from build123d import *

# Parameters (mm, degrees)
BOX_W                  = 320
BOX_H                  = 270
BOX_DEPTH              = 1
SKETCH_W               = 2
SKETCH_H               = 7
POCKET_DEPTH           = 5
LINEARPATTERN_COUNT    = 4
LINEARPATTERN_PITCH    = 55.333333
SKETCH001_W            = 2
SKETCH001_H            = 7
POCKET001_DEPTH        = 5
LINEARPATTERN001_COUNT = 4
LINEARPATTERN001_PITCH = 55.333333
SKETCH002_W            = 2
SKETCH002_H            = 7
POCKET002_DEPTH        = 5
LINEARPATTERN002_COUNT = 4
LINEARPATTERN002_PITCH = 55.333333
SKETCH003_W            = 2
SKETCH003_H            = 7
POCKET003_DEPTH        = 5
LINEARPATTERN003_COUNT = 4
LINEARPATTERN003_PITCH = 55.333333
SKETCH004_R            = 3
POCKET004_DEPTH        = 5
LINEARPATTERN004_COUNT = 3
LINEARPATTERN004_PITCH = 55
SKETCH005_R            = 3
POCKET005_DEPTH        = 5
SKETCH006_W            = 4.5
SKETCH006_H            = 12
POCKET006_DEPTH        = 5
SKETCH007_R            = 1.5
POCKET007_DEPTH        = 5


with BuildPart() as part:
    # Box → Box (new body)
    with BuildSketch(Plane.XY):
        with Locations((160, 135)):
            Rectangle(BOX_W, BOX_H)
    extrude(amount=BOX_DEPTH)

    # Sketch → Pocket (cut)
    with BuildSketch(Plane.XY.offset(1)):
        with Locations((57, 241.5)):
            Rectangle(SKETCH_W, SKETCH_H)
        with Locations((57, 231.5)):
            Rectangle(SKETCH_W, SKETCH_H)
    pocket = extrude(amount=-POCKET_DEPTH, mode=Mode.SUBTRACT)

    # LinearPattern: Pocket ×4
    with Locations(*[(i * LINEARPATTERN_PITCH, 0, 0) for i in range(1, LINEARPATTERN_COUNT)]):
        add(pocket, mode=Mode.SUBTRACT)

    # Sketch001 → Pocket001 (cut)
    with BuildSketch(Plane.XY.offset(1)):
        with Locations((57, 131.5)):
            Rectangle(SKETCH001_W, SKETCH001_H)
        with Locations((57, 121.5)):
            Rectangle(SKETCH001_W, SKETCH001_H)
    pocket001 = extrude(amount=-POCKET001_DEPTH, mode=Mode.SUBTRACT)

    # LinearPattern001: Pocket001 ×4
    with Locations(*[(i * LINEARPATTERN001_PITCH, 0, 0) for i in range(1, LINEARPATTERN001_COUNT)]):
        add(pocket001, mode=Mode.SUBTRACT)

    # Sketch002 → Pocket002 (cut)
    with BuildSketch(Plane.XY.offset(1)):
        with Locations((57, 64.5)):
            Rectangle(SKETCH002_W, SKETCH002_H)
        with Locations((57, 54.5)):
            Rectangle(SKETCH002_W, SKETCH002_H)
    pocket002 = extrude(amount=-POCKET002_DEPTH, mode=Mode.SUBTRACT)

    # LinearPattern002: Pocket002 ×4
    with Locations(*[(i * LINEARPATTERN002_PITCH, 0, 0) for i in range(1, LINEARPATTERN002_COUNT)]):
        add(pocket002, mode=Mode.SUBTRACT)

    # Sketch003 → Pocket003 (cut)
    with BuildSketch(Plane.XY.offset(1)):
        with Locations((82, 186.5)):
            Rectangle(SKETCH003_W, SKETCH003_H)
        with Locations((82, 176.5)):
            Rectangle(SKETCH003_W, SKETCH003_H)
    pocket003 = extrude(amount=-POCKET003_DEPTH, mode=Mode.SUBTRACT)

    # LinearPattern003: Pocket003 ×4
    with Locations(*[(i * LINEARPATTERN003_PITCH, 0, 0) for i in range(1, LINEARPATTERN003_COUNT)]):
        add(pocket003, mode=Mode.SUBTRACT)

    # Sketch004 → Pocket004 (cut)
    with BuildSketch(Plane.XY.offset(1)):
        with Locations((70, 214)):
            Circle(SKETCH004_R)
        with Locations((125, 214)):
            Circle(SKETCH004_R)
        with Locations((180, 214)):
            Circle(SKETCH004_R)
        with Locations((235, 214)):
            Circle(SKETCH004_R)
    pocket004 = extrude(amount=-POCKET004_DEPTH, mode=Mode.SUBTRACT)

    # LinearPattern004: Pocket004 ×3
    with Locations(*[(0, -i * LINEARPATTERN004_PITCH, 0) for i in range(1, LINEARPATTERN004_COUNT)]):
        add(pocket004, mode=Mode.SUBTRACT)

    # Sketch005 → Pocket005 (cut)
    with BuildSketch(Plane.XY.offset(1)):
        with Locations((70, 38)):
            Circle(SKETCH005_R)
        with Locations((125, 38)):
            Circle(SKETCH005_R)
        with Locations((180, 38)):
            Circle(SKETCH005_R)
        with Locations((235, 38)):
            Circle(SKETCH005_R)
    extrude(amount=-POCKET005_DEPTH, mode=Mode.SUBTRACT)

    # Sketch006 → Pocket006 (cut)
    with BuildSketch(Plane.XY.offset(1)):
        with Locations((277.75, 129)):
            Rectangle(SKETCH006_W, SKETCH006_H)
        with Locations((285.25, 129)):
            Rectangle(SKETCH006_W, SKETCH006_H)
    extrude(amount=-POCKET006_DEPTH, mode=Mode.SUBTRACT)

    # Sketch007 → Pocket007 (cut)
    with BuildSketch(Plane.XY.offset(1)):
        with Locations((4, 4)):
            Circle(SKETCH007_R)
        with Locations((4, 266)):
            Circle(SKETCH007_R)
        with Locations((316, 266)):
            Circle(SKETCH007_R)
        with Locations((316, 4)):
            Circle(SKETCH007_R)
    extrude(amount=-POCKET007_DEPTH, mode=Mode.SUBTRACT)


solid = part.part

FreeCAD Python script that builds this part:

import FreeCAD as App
import Part
import Sketcher

V = App.Vector
Q = App.Units.Quantity


def add_polygon(sketch, points):
    """Adds a closed chain of lines whose ends are joined by coincident constraints."""
    first, n = sketch.GeometryCount, len(points)
    for a, b in zip(points, points[1:] + points[:1]):
        sketch.addGeometry(Part.LineSegment(App.Vector(*a, 0), App.Vector(*b, 0)), False)
    for i in range(n):
        sketch.addConstraint(Sketcher.Constraint("Coincident", first + i, 2, first + (i + 1) % n, 1))

doc = App.newDocument("Part")
params = doc.addObject("Spreadsheet::Sheet", "Params")
for row, (alias, value) in enumerate([
    ("sketch1_width", "320 mm"),
    ("sketch1_height", "270 mm"),
    ("pad1_length", "1 mm"),
    ("sketch2_width", "2 mm"),
    ("sketch2_height", "7 mm"),
    ("pocket1_length", "5 mm"),
    ("linearpattern_pitch", "55.333333 mm"),
    ("sketch3_width", "2 mm"),
    ("sketch3_height", "7 mm"),
    ("pocket2_length", "5 mm"),
    ("linearpattern2_pitch", "55.333333 mm"),
    ("sketch4_width", "2 mm"),
    ("sketch4_height", "7 mm"),
    ("pocket3_length", "5 mm"),
    ("linearpattern3_pitch", "55.333333 mm"),
    ("sketch5_width", "2 mm"),
    ("sketch5_height", "7 mm"),
    ("pocket4_length", "5 mm"),
    ("linearpattern4_pitch", "55.333333 mm"),
    ("sketch6_diameter", "6 mm"),
    ("pocket5_length", "5 mm"),
    ("linearpattern5_pitch", "55 mm"),
    ("sketch7_diameter", "6 mm"),
    ("pocket6_length", "5 mm"),
    ("sketch8_height", "12 mm"),
    ("sketch8_width", "4.5 mm"),
    ("pocket7_length", "5 mm"),
    ("sketch9_diameter", "3 mm"),
    ("pocket8_length", "5 mm"),
], start=1):
    params.set(f"A{row}", alias)
    params.set(f"B{row}", "=" + value)
    params.setAlias(f"B{row}", alias)

body = doc.addObject("PartDesign::Body", "Body")

# Sketch on XY plane
sketch1 = body.newObject("Sketcher::SketchObject", "Sketch")
sketch1.AttachmentSupport = (doc.getObject("XY_Plane"), [""])
sketch1.MapMode = "FlatFace"
add_polygon(sketch1, [(0, 270), (0, 0), (320, 0), (320, 270)])  # lines 0-3
sketch1.addConstraint(Sketcher.Constraint("Vertical", 0))
sketch1.addConstraint(Sketcher.Constraint("Horizontal", 1))
sketch1.addConstraint(Sketcher.Constraint("Vertical", 2))
sketch1.addConstraint(Sketcher.Constraint("Horizontal", 3))
sketch1.addConstraint(Sketcher.Constraint("Coincident", 0, 2, -1, 1))
sketch1.addConstraint(Sketcher.Constraint("DistanceX", 1, 1, 1, 2, Q("320 mm")))
sketch1.addConstraint(Sketcher.Constraint("DistanceY", 0, 2, 0, 1, Q("270 mm")))
sketch1.setExpression("Constraints[9]", "Params.sketch1_width")
sketch1.setExpression("Constraints[10]", "Params.sketch1_height")
pad1 = body.newObject("PartDesign::Pad", "Pad")
pad1.Profile = sketch1
pad1.setExpression("Length", "Params.pad1_length")

# Sketch on XY plane
sketch2 = body.newObject("Sketcher::SketchObject", "Sketch001")
sketch2.AttachmentSupport = (doc.getObject("XY_Plane"), [""])
sketch2.MapMode = "FlatFace"
sketch2.AttachmentOffset = App.Placement(V(0, 0, 1), App.Rotation())
add_polygon(sketch2, [(56, 245), (56, 238), (58, 238), (58, 245)])  # lines 0-3
add_polygon(sketch2, [(56, 235), (56, 228), (58, 228), (58, 235)])  # lines 4-7
sketch2.addConstraint(Sketcher.Constraint("Vertical", 0))
sketch2.addConstraint(Sketcher.Constraint("Horizontal", 1))
sketch2.addConstraint(Sketcher.Constraint("Vertical", 2))
sketch2.addConstraint(Sketcher.Constraint("Horizontal", 3))
sketch2.addConstraint(Sketcher.Constraint("Vertical", 4))
sketch2.addConstraint(Sketcher.Constraint("Horizontal", 5))
sketch2.addConstraint(Sketcher.Constraint("Vertical", 6))
sketch2.addConstraint(Sketcher.Constraint("Horizontal", 7))
sketch2.addConstraint(Sketcher.Constraint("Vertical", 3, 2, 4, 2))
sketch2.addConstraint(Sketcher.Constraint("Vertical", 2, 2, 5, 2))
sketch2.addConstraint(Sketcher.Constraint("Equal", 2, 4))
sketch2.addConstraint(Sketcher.Constraint("DistanceX", 1, 1, 1, 2, Q("2 mm")))
sketch2.addConstraint(Sketcher.Constraint("DistanceY", 0, 2, 0, 1, Q("7 mm")))
sketch2.addConstraint(Sketcher.Constraint("DistanceX", -1, 1, 0, 2, Q("56 mm")))
sketch2.addConstraint(Sketcher.Constraint("DistanceY", -1, 1, 0, 2, Q("238 mm")))
sketch2.addConstraint(Sketcher.Constraint("DistanceY", -1, 1, 4, 2, Q("228 mm")))
sketch2.setExpression("Constraints[19]", "Params.sketch2_width")
sketch2.setExpression("Constraints[20]", "Params.sketch2_height")
pocket1 = body.newObject("PartDesign::Pocket", "Pocket")
pocket1.Profile = sketch2
pocket1.setExpression("Length", "Params.pocket1_length")
doc.recompute()

linearpattern = body.newObject("PartDesign::LinearPattern", "LinearPattern")
linearpattern.Originals = [pocket1]
linearpattern.Direction = (doc.getObject("X_Axis"), [""])
linearpattern.Mode = "offset"
linearpattern.setExpression("Offset", "Params.linearpattern_pitch")
linearpattern.Occurrences = 4
body.Tip = linearpattern

# Sketch on XY plane
sketch3 = body.newObject("Sketcher::SketchObject", "Sketch002")
sketch3.AttachmentSupport = (doc.getObject("XY_Plane"), [""])
sketch3.MapMode = "FlatFace"
sketch3.AttachmentOffset = App.Placement(V(0, 0, 1), App.Rotation())
add_polygon(sketch3, [(56, 135), (56, 128), (58, 128), (58, 135)])  # lines 0-3
add_polygon(sketch3, [(56, 125), (56, 118), (58, 118), (58, 125)])  # lines 4-7
sketch3.addConstraint(Sketcher.Constraint("Vertical", 0))
sketch3.addConstraint(Sketcher.Constraint("Horizontal", 1))
sketch3.addConstraint(Sketcher.Constraint("Vertical", 2))
sketch3.addConstraint(Sketcher.Constraint("Horizontal", 3))
sketch3.addConstraint(Sketcher.Constraint("Vertical", 4))
sketch3.addConstraint(Sketcher.Constraint("Horizontal", 5))
sketch3.addConstraint(Sketcher.Constraint("Vertical", 6))
sketch3.addConstraint(Sketcher.Constraint("Horizontal", 7))
sketch3.addConstraint(Sketcher.Constraint("Vertical", 3, 2, 4, 2))
sketch3.addConstraint(Sketcher.Constraint("Vertical", 2, 2, 5, 2))
sketch3.addConstraint(Sketcher.Constraint("Equal", 2, 4))
sketch3.addConstraint(Sketcher.Constraint("DistanceX", 1, 1, 1, 2, Q("2 mm")))
sketch3.addConstraint(Sketcher.Constraint("DistanceY", 0, 2, 0, 1, Q("7 mm")))
sketch3.addConstraint(Sketcher.Constraint("DistanceX", -1, 1, 0, 2, Q("56 mm")))
sketch3.addConstraint(Sketcher.Constraint("DistanceY", -1, 1, 0, 2, Q("128 mm")))
sketch3.addConstraint(Sketcher.Constraint("DistanceY", -1, 1, 4, 2, Q("118 mm")))
sketch3.setExpression("Constraints[19]", "Params.sketch3_width")
sketch3.setExpression("Constraints[20]", "Params.sketch3_height")
pocket2 = body.newObject("PartDesign::Pocket", "Pocket001")
pocket2.Profile = sketch3
pocket2.setExpression("Length", "Params.pocket2_length")
doc.recompute()

linearpattern2 = body.newObject("PartDesign::LinearPattern", "LinearPattern001")
linearpattern2.Originals = [pocket2]
linearpattern2.Direction = (doc.getObject("X_Axis"), [""])
linearpattern2.Mode = "offset"
linearpattern2.setExpression("Offset", "Params.linearpattern2_pitch")
linearpattern2.Occurrences = 4
body.Tip = linearpattern2

# Sketch on XY plane
sketch4 = body.newObject("Sketcher::SketchObject", "Sketch003")
sketch4.AttachmentSupport = (doc.getObject("XY_Plane"), [""])
sketch4.MapMode = "FlatFace"
sketch4.AttachmentOffset = App.Placement(V(0, 0, 1), App.Rotation())
add_polygon(sketch4, [(56, 68), (56, 61), (58, 61), (58, 68)])  # lines 0-3
add_polygon(sketch4, [(56, 58), (56, 51), (58, 51), (58, 58)])  # lines 4-7
sketch4.addConstraint(Sketcher.Constraint("Vertical", 0))
sketch4.addConstraint(Sketcher.Constraint("Horizontal", 1))
sketch4.addConstraint(Sketcher.Constraint("Vertical", 2))
sketch4.addConstraint(Sketcher.Constraint("Horizontal", 3))
sketch4.addConstraint(Sketcher.Constraint("Vertical", 4))
sketch4.addConstraint(Sketcher.Constraint("Horizontal", 5))
sketch4.addConstraint(Sketcher.Constraint("Vertical", 6))
sketch4.addConstraint(Sketcher.Constraint("Horizontal", 7))
sketch4.addConstraint(Sketcher.Constraint("Vertical", 3, 2, 4, 2))
sketch4.addConstraint(Sketcher.Constraint("Vertical", 2, 2, 5, 2))
sketch4.addConstraint(Sketcher.Constraint("Equal", 2, 4))
sketch4.addConstraint(Sketcher.Constraint("DistanceX", 1, 1, 1, 2, Q("2 mm")))
sketch4.addConstraint(Sketcher.Constraint("DistanceY", 0, 2, 0, 1, Q("7 mm")))
sketch4.addConstraint(Sketcher.Constraint("DistanceX", -1, 1, 0, 2, Q("56 mm")))
sketch4.addConstraint(Sketcher.Constraint("DistanceY", -1, 1, 0, 2, Q("61 mm")))
sketch4.addConstraint(Sketcher.Constraint("DistanceY", -1, 1, 4, 2, Q("51 mm")))
sketch4.setExpression("Constraints[19]", "Params.sketch4_width")
sketch4.setExpression("Constraints[20]", "Params.sketch4_height")
pocket3 = body.newObject("PartDesign::Pocket", "Pocket002")
pocket3.Profile = sketch4
pocket3.setExpression("Length", "Params.pocket3_length")
doc.recompute()

linearpattern3 = body.newObject("PartDesign::LinearPattern", "LinearPattern002")
linearpattern3.Originals = [pocket3]
linearpattern3.Direction = (doc.getObject("X_Axis"), [""])
linearpattern3.Mode = "offset"
linearpattern3.setExpression("Offset", "Params.linearpattern3_pitch")
linearpattern3.Occurrences = 4
body.Tip = linearpattern3

# Sketch on XY plane
sketch5 = body.newObject("Sketcher::SketchObject", "Sketch004")
sketch5.AttachmentSupport = (doc.getObject("XY_Plane"), [""])
sketch5.MapMode = "FlatFace"
sketch5.AttachmentOffset = App.Placement(V(0, 0, 1), App.Rotation())
add_polygon(sketch5, [(81, 190), (81, 183), (83, 183), (83, 190)])  # lines 0-3
add_polygon(sketch5, [(81, 180), (81, 173), (83, 173), (83, 180)])  # lines 4-7
sketch5.addConstraint(Sketcher.Constraint("Vertical", 0))
sketch5.addConstraint(Sketcher.Constraint("Horizontal", 1))
sketch5.addConstraint(Sketcher.Constraint("Vertical", 2))
sketch5.addConstraint(Sketcher.Constraint("Horizontal", 3))
sketch5.addConstraint(Sketcher.Constraint("Vertical", 4))
sketch5.addConstraint(Sketcher.Constraint("Horizontal", 5))
sketch5.addConstraint(Sketcher.Constraint("Vertical", 6))
sketch5.addConstraint(Sketcher.Constraint("Horizontal", 7))
sketch5.addConstraint(Sketcher.Constraint("Vertical", 3, 2, 4, 2))
sketch5.addConstraint(Sketcher.Constraint("Vertical", 2, 2, 5, 2))
sketch5.addConstraint(Sketcher.Constraint("Equal", 2, 4))
sketch5.addConstraint(Sketcher.Constraint("DistanceX", 1, 1, 1, 2, Q("2 mm")))
sketch5.addConstraint(Sketcher.Constraint("DistanceY", 0, 2, 0, 1, Q("7 mm")))
sketch5.addConstraint(Sketcher.Constraint("DistanceX", -1, 1, 0, 2, Q("81 mm")))
sketch5.addConstraint(Sketcher.Constraint("DistanceY", -1, 1, 0, 2, Q("183 mm")))
sketch5.addConstraint(Sketcher.Constraint("DistanceY", -1, 1, 4, 2, Q("173 mm")))
sketch5.setExpression("Constraints[19]", "Params.sketch5_width")
sketch5.setExpression("Constraints[20]", "Params.sketch5_height")
pocket4 = body.newObject("PartDesign::Pocket", "Pocket003")
pocket4.Profile = sketch5
pocket4.setExpression("Length", "Params.pocket4_length")
doc.recompute()

linearpattern4 = body.newObject("PartDesign::LinearPattern", "LinearPattern003")
linearpattern4.Originals = [pocket4]
linearpattern4.Direction = (doc.getObject("X_Axis"), [""])
linearpattern4.Mode = "offset"
linearpattern4.setExpression("Offset", "Params.linearpattern4_pitch")
linearpattern4.Occurrences = 4
body.Tip = linearpattern4

# Sketch on XY plane
sketch6 = body.newObject("Sketcher::SketchObject", "Sketch005")
sketch6.AttachmentSupport = (doc.getObject("XY_Plane"), [""])
sketch6.MapMode = "FlatFace"
sketch6.AttachmentOffset = App.Placement(V(0, 0, 1), App.Rotation())
sketch6.addGeometry(Part.Circle(V(70, 214, 0), V(0, 0, 1), 3), False)
sketch6.addGeometry(Part.Circle(V(125, 214, 0), V(0, 0, 1), 3), False)
sketch6.addGeometry(Part.Circle(V(180, 214, 0), V(0, 0, 1), 3), False)
sketch6.addGeometry(Part.Circle(V(235, 214, 0), V(0, 0, 1), 3), False)
sketch6.addConstraint(Sketcher.Constraint("Equal", 0, 1))
sketch6.addConstraint(Sketcher.Constraint("Equal", 1, 2))
sketch6.addConstraint(Sketcher.Constraint("Equal", 2, 3))
sketch6.addConstraint(Sketcher.Constraint("Horizontal", 0, 3, 1, 3))
sketch6.addConstraint(Sketcher.Constraint("Horizontal", 1, 3, 2, 3))
sketch6.addConstraint(Sketcher.Constraint("Horizontal", 2, 3, 3, 3))
sketch6.addConstraint(Sketcher.Constraint("Diameter", 0, Q("6 mm")))
sketch6.addConstraint(Sketcher.Constraint("DistanceX", -1, 1, 0, 3, Q("70 mm")))
sketch6.addConstraint(Sketcher.Constraint("DistanceY", -1, 1, 0, 3, Q("214 mm")))
sketch6.addConstraint(Sketcher.Constraint("DistanceX", -1, 1, 1, 3, Q("125 mm")))
sketch6.addConstraint(Sketcher.Constraint("DistanceX", -1, 1, 2, 3, Q("180 mm")))
sketch6.addConstraint(Sketcher.Constraint("DistanceX", -1, 1, 3, 3, Q("235 mm")))
sketch6.setExpression("Constraints[6]", "Params.sketch6_diameter")
pocket5 = body.newObject("PartDesign::Pocket", "Pocket004")
pocket5.Profile = sketch6
pocket5.setExpression("Length", "Params.pocket5_length")
doc.recompute()

linearpattern5 = body.newObject("PartDesign::LinearPattern", "LinearPattern004")
linearpattern5.Originals = [pocket5]
linearpattern5.Direction = (doc.getObject("Y_Axis"), [""])
linearpattern5.Mode = "offset"
linearpattern5.setExpression("Offset", "Params.linearpattern5_pitch")
linearpattern5.Occurrences = 3
linearpattern5.Reversed = True
body.Tip = linearpattern5

# Sketch on XY plane
sketch7 = body.newObject("Sketcher::SketchObject", "Sketch006")
sketch7.AttachmentSupport = (doc.getObject("XY_Plane"), [""])
sketch7.MapMode = "FlatFace"
sketch7.AttachmentOffset = App.Placement(V(0, 0, 1), App.Rotation())
sketch7.addGeometry(Part.Circle(V(70, 38, 0), V(0, 0, 1), 3), False)
sketch7.addGeometry(Part.Circle(V(125, 38, 0), V(0, 0, 1), 3), False)
sketch7.addGeometry(Part.Circle(V(180, 38, 0), V(0, 0, 1), 3), False)
sketch7.addGeometry(Part.Circle(V(235, 38, 0), V(0, 0, 1), 3), False)
sketch7.addConstraint(Sketcher.Constraint("Equal", 0, 1))
sketch7.addConstraint(Sketcher.Constraint("Equal", 1, 2))
sketch7.addConstraint(Sketcher.Constraint("Equal", 2, 3))
sketch7.addConstraint(Sketcher.Constraint("Horizontal", 0, 3, 1, 3))
sketch7.addConstraint(Sketcher.Constraint("Horizontal", 1, 3, 2, 3))
sketch7.addConstraint(Sketcher.Constraint("Horizontal", 2, 3, 3, 3))
sketch7.addConstraint(Sketcher.Constraint("Diameter", 0, Q("6 mm")))
sketch7.addConstraint(Sketcher.Constraint("DistanceX", -1, 1, 0, 3, Q("70 mm")))
sketch7.addConstraint(Sketcher.Constraint("DistanceY", -1, 1, 0, 3, Q("38 mm")))
sketch7.addConstraint(Sketcher.Constraint("DistanceX", -1, 1, 1, 3, Q("125 mm")))
sketch7.addConstraint(Sketcher.Constraint("DistanceX", -1, 1, 2, 3, Q("180 mm")))
sketch7.addConstraint(Sketcher.Constraint("DistanceX", -1, 1, 3, 3, Q("235 mm")))
sketch7.setExpression("Constraints[6]", "Params.sketch7_diameter")
pocket6 = body.newObject("PartDesign::Pocket", "Pocket005")
pocket6.Profile = sketch7
pocket6.setExpression("Length", "Params.pocket6_length")

# Sketch on XY plane
sketch8 = body.newObject("Sketcher::SketchObject", "Sketch007")
sketch8.AttachmentSupport = (doc.getObject("XY_Plane"), [""])
sketch8.MapMode = "FlatFace"
sketch8.AttachmentOffset = App.Placement(V(0, 0, 1), App.Rotation())
add_polygon(sketch8, [(275.5, 135), (275.5, 123), (280, 123), (280, 135)])  # lines 0-3
add_polygon(sketch8, [(283, 135), (283, 123), (287.5, 123), (287.5, 135)])  # lines 4-7
sketch8.addConstraint(Sketcher.Constraint("Vertical", 0))
sketch8.addConstraint(Sketcher.Constraint("Horizontal", 1))
sketch8.addConstraint(Sketcher.Constraint("Vertical", 2))
sketch8.addConstraint(Sketcher.Constraint("Horizontal", 3))
sketch8.addConstraint(Sketcher.Constraint("Vertical", 4))
sketch8.addConstraint(Sketcher.Constraint("Horizontal", 5))
sketch8.addConstraint(Sketcher.Constraint("Vertical", 6))
sketch8.addConstraint(Sketcher.Constraint("Horizontal", 7))
sketch8.addConstraint(Sketcher.Constraint("Horizontal", 1, 2, 4, 2))
sketch8.addConstraint(Sketcher.Constraint("Horizontal", 3, 2, 6, 2))
sketch8.addConstraint(Sketcher.Constraint("Equal", 3, 5))
sketch8.addConstraint(Sketcher.Constraint("DistanceY", 0, 2, 0, 1, Q("12 mm")))
sketch8.addConstraint(Sketcher.Constraint("DistanceX", 1, 1, 1, 2, Q("4.5 mm")))
sketch8.addConstraint(Sketcher.Constraint("DistanceY", -1, 1, 0, 2, Q("123 mm")))
sketch8.addConstraint(Sketcher.Constraint("DistanceX", -1, 1, 1, 2, Q("280 mm")))
sketch8.addConstraint(Sketcher.Constraint("DistanceX", -1, 1, 4, 2, Q("283 mm")))
sketch8.setExpression("Constraints[19]", "Params.sketch8_height")
sketch8.setExpression("Constraints[20]", "Params.sketch8_width")
pocket7 = body.newObject("PartDesign::Pocket", "Pocket006")
pocket7.Profile = sketch8
pocket7.setExpression("Length", "Params.pocket7_length")

# Sketch on XY plane
sketch9 = body.newObject("Sketcher::SketchObject", "Sketch008")
sketch9.AttachmentSupport = (doc.getObject("XY_Plane"), [""])
sketch9.MapMode = "FlatFace"
sketch9.AttachmentOffset = App.Placement(V(0, 0, 1), App.Rotation())
sketch9.addGeometry(Part.Circle(V(4, 4, 0), V(0, 0, 1), 1.5), False)
sketch9.addGeometry(Part.Circle(V(4, 266, 0), V(0, 0, 1), 1.5), False)
sketch9.addGeometry(Part.Circle(V(316, 266, 0), V(0, 0, 1), 1.5), False)
sketch9.addGeometry(Part.Circle(V(316, 4, 0), V(0, 0, 1), 1.5), False)
sketch9.addConstraint(Sketcher.Constraint("Equal", 0, 1))
sketch9.addConstraint(Sketcher.Constraint("Equal", 1, 2))
sketch9.addConstraint(Sketcher.Constraint("Equal", 2, 3))
sketch9.addConstraint(Sketcher.Constraint("Horizontal", 1, 3, 2, 3))
sketch9.addConstraint(Sketcher.Constraint("Horizontal", 0, 3, 3, 3))
sketch9.addConstraint(Sketcher.Constraint("Vertical", 0, 3, 1, 3))
sketch9.addConstraint(Sketcher.Constraint("Vertical", 2, 3, 3, 3))
sketch9.addConstraint(Sketcher.Constraint("Diameter", 0, Q("3 mm")))
sketch9.addConstraint(Sketcher.Constraint("DistanceX", -1, 1, 0, 3, Q("4 mm")))
sketch9.addConstraint(Sketcher.Constraint("DistanceY", -1, 1, 0, 3, Q("4 mm")))
sketch9.addConstraint(Sketcher.Constraint("DistanceY", -1, 1, 1, 3, Q("266 mm")))
sketch9.addConstraint(Sketcher.Constraint("DistanceX", -1, 1, 2, 3, Q("316 mm")))
sketch9.setExpression("Constraints[7]", "Params.sketch9_diameter")
pocket8 = body.newObject("PartDesign::Pocket", "Pocket007")
pocket8.Profile = sketch9
pocket8.setExpression("Length", "Params.pocket8_length")

doc.recompute()
